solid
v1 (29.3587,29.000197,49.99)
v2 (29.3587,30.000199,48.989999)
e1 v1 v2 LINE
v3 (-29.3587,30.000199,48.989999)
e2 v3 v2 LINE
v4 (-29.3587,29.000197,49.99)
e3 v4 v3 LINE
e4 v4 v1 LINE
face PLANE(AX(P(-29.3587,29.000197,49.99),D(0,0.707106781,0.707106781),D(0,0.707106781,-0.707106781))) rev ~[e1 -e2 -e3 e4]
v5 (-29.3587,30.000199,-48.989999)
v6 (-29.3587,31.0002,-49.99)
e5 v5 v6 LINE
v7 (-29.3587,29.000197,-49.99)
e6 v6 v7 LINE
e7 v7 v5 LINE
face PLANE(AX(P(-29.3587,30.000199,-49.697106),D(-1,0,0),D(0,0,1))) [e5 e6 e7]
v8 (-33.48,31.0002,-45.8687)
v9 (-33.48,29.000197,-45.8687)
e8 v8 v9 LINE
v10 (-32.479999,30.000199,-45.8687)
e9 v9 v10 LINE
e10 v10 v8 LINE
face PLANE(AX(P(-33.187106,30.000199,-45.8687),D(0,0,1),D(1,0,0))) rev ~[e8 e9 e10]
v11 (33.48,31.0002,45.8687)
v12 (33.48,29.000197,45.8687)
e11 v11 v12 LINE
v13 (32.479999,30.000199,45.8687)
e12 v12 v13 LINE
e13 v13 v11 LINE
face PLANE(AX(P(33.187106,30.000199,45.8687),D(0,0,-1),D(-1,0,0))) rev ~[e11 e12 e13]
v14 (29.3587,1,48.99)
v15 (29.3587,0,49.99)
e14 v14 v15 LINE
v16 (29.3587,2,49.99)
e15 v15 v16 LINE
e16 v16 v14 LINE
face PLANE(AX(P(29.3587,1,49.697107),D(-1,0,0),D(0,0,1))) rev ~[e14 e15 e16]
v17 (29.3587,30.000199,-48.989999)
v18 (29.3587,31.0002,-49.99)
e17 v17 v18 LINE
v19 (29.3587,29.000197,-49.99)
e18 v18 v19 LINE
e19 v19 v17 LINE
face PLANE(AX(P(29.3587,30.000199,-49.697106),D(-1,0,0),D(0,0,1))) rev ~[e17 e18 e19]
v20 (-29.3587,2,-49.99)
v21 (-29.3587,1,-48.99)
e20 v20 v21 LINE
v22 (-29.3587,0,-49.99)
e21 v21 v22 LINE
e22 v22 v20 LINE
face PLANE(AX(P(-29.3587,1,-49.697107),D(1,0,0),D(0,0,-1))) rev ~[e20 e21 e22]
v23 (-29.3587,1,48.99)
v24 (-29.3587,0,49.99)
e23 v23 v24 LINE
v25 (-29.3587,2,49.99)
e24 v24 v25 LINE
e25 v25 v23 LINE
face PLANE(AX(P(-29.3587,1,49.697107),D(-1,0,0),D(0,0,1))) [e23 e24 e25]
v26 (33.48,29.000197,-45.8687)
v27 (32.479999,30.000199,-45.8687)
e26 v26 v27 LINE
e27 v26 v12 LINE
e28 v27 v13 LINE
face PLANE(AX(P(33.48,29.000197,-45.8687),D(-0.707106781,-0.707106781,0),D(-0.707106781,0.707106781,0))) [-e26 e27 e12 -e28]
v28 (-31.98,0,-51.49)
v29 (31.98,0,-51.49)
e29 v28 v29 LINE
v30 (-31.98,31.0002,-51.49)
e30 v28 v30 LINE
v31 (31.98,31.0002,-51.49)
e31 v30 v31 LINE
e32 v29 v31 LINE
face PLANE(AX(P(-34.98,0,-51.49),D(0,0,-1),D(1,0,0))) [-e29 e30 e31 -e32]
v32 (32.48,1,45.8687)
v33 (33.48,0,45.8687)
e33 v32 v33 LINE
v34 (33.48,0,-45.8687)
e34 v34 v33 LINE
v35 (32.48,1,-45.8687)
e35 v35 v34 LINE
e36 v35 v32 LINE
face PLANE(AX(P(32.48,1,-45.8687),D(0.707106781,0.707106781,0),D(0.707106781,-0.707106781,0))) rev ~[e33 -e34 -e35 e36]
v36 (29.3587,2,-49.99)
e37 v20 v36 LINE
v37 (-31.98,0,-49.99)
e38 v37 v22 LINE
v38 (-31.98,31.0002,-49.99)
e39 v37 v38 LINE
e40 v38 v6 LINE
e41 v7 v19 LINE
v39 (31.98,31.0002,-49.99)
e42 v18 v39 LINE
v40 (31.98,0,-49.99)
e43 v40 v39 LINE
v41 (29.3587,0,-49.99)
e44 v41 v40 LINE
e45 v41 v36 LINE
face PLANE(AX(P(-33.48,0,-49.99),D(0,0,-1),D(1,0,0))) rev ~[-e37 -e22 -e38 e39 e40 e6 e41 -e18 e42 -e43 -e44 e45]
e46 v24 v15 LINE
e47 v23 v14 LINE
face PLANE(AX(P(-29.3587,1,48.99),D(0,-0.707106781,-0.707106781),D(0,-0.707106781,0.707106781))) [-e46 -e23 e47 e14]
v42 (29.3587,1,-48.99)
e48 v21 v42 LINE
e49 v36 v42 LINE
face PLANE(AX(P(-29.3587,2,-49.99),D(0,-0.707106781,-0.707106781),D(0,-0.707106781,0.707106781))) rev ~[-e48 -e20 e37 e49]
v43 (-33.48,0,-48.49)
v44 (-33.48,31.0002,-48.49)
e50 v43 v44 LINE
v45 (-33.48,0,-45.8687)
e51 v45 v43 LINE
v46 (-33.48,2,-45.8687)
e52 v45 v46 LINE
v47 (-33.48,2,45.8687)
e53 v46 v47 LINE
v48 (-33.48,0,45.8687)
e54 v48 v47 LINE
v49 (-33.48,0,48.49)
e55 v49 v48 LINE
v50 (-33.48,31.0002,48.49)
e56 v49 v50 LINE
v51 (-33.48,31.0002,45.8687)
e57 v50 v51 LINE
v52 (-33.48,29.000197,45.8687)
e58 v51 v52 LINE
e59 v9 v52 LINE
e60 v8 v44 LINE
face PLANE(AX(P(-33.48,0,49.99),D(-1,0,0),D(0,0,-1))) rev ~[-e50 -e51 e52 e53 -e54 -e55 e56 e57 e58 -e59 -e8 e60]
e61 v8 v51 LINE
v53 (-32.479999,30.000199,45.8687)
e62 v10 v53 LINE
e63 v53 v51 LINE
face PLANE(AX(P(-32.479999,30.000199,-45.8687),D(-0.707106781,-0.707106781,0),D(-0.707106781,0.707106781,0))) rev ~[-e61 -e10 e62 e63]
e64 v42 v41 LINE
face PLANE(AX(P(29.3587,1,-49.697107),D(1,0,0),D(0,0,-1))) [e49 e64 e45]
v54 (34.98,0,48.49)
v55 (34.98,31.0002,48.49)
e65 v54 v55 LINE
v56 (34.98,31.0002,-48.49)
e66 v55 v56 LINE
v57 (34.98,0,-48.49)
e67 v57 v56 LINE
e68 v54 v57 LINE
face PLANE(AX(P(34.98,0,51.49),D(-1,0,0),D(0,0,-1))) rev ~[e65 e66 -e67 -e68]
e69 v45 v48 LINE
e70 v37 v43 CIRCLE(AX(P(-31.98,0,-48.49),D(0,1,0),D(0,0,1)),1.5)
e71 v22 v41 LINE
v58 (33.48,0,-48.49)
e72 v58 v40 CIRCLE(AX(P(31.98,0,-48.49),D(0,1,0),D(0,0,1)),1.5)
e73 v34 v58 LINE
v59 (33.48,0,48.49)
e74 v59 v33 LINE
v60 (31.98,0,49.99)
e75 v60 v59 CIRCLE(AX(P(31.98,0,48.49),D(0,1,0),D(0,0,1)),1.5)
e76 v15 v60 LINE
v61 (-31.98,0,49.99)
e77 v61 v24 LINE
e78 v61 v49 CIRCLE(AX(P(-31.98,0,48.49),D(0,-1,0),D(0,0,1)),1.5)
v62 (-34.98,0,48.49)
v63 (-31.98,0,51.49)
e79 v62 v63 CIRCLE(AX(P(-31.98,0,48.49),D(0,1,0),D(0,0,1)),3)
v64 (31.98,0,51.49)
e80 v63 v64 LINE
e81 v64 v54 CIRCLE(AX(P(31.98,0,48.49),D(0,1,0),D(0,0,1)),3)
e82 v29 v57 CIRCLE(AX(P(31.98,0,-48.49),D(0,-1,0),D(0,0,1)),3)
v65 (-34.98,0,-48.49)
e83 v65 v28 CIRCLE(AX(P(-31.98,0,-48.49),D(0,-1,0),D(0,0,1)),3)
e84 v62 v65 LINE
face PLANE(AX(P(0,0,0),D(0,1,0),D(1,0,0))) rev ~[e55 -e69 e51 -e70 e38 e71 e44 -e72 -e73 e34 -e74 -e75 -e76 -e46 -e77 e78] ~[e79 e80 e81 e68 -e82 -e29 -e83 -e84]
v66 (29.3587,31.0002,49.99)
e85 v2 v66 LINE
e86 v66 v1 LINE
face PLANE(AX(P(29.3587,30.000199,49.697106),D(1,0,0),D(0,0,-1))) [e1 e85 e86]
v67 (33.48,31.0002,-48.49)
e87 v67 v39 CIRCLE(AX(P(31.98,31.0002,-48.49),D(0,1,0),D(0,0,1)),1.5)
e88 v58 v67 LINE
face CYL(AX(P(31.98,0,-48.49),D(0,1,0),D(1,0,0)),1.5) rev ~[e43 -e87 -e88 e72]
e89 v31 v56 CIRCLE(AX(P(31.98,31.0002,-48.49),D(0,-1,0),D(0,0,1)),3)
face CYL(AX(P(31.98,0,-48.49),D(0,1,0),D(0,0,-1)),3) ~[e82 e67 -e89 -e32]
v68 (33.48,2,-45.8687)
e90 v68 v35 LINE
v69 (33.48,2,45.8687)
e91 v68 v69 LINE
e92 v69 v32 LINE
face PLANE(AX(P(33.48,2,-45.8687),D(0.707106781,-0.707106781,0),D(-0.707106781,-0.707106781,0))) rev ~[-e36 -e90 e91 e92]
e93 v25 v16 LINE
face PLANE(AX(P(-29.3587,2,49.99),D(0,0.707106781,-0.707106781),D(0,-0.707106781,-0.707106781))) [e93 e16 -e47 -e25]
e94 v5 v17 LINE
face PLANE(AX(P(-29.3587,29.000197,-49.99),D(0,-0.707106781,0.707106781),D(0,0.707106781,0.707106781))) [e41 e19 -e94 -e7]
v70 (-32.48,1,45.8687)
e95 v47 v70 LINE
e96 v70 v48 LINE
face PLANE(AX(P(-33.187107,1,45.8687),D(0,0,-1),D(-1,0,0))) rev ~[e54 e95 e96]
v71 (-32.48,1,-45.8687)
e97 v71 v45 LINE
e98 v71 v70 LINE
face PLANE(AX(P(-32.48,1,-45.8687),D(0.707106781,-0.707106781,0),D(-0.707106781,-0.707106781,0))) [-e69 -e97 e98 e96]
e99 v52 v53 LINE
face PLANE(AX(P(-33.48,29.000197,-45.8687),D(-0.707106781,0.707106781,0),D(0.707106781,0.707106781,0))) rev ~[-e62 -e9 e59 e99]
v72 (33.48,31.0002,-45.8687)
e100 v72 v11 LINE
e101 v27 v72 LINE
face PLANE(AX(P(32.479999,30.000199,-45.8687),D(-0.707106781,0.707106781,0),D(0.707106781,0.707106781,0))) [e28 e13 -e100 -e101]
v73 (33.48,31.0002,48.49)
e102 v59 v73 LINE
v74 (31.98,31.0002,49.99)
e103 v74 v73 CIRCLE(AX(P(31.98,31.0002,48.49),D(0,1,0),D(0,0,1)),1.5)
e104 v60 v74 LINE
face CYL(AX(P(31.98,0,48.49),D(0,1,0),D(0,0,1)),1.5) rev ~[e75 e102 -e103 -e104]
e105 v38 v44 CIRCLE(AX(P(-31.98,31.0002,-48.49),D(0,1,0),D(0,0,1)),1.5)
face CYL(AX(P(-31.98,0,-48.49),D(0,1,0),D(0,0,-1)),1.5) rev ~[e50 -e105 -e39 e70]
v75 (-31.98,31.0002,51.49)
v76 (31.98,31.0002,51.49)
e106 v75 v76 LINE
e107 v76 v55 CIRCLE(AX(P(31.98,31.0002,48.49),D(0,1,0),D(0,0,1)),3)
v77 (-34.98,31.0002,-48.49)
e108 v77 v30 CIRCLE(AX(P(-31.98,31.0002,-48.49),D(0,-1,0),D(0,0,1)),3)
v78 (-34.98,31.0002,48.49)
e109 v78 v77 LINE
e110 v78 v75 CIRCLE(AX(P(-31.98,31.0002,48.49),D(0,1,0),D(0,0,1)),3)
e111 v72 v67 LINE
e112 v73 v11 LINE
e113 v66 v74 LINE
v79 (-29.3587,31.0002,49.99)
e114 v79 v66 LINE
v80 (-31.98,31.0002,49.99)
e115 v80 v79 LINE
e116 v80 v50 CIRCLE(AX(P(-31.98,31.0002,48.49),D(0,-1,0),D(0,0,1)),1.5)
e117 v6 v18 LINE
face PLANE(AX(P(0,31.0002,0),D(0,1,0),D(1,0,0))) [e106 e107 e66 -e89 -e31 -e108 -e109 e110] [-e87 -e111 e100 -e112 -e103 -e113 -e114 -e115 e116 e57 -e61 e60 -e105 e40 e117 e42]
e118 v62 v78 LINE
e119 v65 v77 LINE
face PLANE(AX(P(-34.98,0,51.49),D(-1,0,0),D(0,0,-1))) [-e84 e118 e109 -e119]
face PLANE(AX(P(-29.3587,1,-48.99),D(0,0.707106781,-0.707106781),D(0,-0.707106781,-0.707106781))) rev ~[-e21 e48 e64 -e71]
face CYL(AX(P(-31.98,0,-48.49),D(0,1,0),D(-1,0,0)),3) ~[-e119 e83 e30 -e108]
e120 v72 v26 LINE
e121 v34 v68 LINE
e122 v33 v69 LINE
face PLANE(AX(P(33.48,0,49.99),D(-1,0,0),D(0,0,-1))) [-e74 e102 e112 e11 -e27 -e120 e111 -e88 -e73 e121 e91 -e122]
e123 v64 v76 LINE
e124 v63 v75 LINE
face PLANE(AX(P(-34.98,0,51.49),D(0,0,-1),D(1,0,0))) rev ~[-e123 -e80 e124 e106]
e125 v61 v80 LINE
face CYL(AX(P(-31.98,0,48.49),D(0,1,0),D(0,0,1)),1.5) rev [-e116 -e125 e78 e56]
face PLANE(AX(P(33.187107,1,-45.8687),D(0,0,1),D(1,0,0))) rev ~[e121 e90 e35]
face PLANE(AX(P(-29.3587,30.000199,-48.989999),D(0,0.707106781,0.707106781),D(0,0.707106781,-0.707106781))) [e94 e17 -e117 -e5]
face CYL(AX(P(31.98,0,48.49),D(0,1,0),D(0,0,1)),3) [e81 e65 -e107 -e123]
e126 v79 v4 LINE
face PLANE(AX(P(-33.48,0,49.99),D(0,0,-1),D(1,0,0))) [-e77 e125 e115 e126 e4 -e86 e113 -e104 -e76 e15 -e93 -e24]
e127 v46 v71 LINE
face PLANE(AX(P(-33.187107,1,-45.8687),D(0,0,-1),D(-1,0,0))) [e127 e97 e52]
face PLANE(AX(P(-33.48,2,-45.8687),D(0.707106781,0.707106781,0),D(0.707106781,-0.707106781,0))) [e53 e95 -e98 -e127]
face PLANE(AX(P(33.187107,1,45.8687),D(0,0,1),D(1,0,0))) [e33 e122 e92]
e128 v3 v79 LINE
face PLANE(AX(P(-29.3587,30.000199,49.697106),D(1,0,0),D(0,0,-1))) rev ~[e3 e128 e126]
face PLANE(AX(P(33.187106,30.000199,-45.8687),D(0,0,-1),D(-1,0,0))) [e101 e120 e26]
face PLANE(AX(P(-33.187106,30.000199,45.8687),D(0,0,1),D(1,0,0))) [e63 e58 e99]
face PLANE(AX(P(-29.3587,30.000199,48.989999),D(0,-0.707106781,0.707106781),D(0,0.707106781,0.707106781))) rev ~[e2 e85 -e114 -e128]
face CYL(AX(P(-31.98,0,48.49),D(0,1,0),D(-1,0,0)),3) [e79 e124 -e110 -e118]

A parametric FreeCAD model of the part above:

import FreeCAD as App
import Part
import Sketcher


def edges_at(feature, points):
    """Names of the edges that pass closest to the given points."""
    edges = feature.Shape.Edges
    near = lambda p: min(range(len(edges)), key=lambda i: edges[i].distToShape(Part.Vertex(*p))[0])
    return sorted({f"Edge{near(p) + 1}" for p in points})


def add_polygon(sketch, points):
    """Adds a closed chain of lines whose ends are joined by coincident constraints."""
    first, n = sketch.GeometryCount, len(points)
    for a, b in zip(points, points[1:] + points[:1]):
        sketch.addGeometry(Part.LineSegment(App.Vector(*a, 0), App.Vector(*b, 0)), False)
    for i in range(n):
        sketch.addConstraint(Sketcher.Constraint("Coincident", first + i, 2, first + (i + 1) % n, 1))

doc = App.newDocument("Part")
body = doc.addObject("PartDesign::Body", "Body")

sketch1 = body.newObject("Sketcher::SketchObject", "Sketch")
sketch1.AttachmentSupport = (doc.getObject("XZ_Plane"), [""])
sketch1.MapMode = "FlatFace"
add_polygon(sketch1, [(-35, -51), (-35, 51), (35, 51), (35, -51)])
add_polygon(sketch1, [(33, 50), (-33, 50), (-33, -50), (33, -50)])
sketch1.addConstraint(Sketcher.Constraint("Vertical", 0))
sketch1.addConstraint(Sketcher.Constraint("Horizontal", 1))
sketch1.addConstraint(Sketcher.Constraint("Vertical", 2))
sketch1.addConstraint(Sketcher.Constraint("Horizontal", 3))
sketch1.addConstraint(Sketcher.Constraint("Horizontal", 4))
sketch1.addConstraint(Sketcher.Constraint("Vertical", 5))
sketch1.addConstraint(Sketcher.Constraint("Horizontal", 6))
sketch1.addConstraint(Sketcher.Constraint("Vertical", 7))
sketch1.addConstraint(Sketcher.Constraint("Symmetric", 0, 2, 2, 2, -1, 1))
sketch1.addConstraint(Sketcher.Constraint("Symmetric", 4, 2, 6, 2, -1, 1))
sketch1.addConstraint(Sketcher.Constraint("DistanceX", 1, 1, 1, 2, 69.96))
sketch1.addConstraint(Sketcher.Constraint("DistanceX", 4, 2, 4, 1, 66.96))
sketch1.addConstraint(Sketcher.Constraint("DistanceY", 0, 1, 0, 2, 102.98))
sketch1.addConstraint(Sketcher.Constraint("DistanceY", 5, 2, 5, 1, 99.98))
pad1 = body.newObject("PartDesign::Pad", "Pad")
pad1.Profile = sketch1
pad1.Length = 31.0002
pad1.Reversed = True
doc.recompute()

fillet = body.newObject("PartDesign::Fillet", "Fillet")
fillet.Base = (pad1, edges_at(pad1, [
    (34.98, 15.5, 51.49),
    (-34.98, 15.5, 51.49),
    (-34.98, 15.5, -51.49),
    (34.98, 15.5, -51.49),
]))
fillet.Radius = 3
doc.recompute()

fillet2 = body.newObject("PartDesign::Fillet", "Fillet001")
fillet2.Base = (fillet, edges_at(fillet, [
    (-33.48, 15.5, -49.99),
    (-33.48, 15.5, 49.99),
    (33.48, 15.5, 49.99),
    (33.48, 15.5, -49.99),
]))
fillet2.Radius = 1.5

sketch2 = body.newObject("Sketcher::SketchObject", "Sketch001")
sketch2.AttachmentSupport = (doc.getObject("YZ_Plane"), [""])
sketch2.MapMode = "FlatFace"
sketch2.AttachmentOffset = App.Placement(App.Vector(0, 0, -29.3587), App.Rotation())
add_polygon(sketch2, [(31, 50), (29, 50), (30, 49)])
add_polygon(sketch2, [(29, -50), (31, -50), (30, -49)])
add_polygon(sketch2, [(2, 50), (0, 50), (1, 49)])
add_polygon(sketch2, [(0, -50), (2, -50), (1, -49)])
sketch2.addConstraint(Sketcher.Constraint("Horizontal", 0))
sketch2.addConstraint(Sketcher.Constraint("Horizontal", 3))
sketch2.addConstraint(Sketcher.Constraint("Horizontal", 6))
sketch2.addConstraint(Sketcher.Constraint("Horizontal", 9))
sketch2.addConstraint(Sketcher.Constraint("Symmetric", 6, 2, 11, 2, -1, 1))
sketch2.addConstraint(Sketcher.Constraint("Symmetric", 2, 2, 3, 2, -1))
sketch2.addConstraint(Sketcher.Constraint("Symmetric", 1, 2, 4, 2, -1))
sketch2.addConstraint(Sketcher.Constraint("Symmetric", 7, 2, 10, 2, -1))
sketch2.addConstraint(Sketcher.Constraint("PointOnObject", 6, 2, -2))
sketch2.addConstraint(Sketcher.Constraint("Perpendicular", 1, 2))
sketch2.addConstraint(Sketcher.Constraint("Perpendicular", 2, 4))
sketch2.addConstraint(Sketcher.Constraint("Perpendicular", 4, 5))
sketch2.addConstraint(Sketcher.Constraint("Perpendicular", 5, 7))
sketch2.addConstraint(Sketcher.Constraint("Perpendicular", 7, 8))
sketch2.addConstraint(Sketcher.Constraint("Perpendicular", 8, 10))
sketch2.addConstraint(Sketcher.Constraint("Horizontal", 2, 2, 6, 2))
sketch2.addConstraint(Sketcher.Constraint("Horizontal", 1, 2, 7, 2))
sketch2.addConstraint(Sketcher.Constraint("DistanceX", 6, 2, 6, 1, 2.0))
sketch2.addConstraint(Sketcher.Constraint("DistanceY", -1, 1, 0, 2, 49.99))
sketch2.addConstraint(Sketcher.Constraint("DistanceX", -1, 1, 1, 2, 30.000199))
pad2 = body.newObject("PartDesign::Pad", "Pad001")
pad2.Profile = sketch2
pad2.Length = 58.7174

sketch3 = body.newObject("Sketcher::SketchObject", "Sketch002")
sketch3.AttachmentSupport = (doc.getObject("XY_Plane"), [""])
sketch3.MapMode = "FlatFace"
sketch3.AttachmentOffset = App.Placement(App.Vector(0, 0, -45.8687), App.Rotation())
add_polygon(sketch3, [(-33.5, 31), (-33.5, 29), (-32.5, 30)])
add_polygon(sketch3, [(-33.5, 2), (-33.5, 0), (-32.5, 1)])
add_polygon(sketch3, [(33.5, 29), (33.5, 31), (32.5, 30)])
add_polygon(sketch3, [(33.5, 0), (33.5, 2), (32.5, 1)])
sketch3.addConstraint(Sketcher.Constraint("Vertical", 0))
sketch3.addConstraint(Sketcher.Constraint("Vertical", 3))
sketch3.addConstraint(Sketcher.Constraint("Vertical", 6))
sketch3.addConstraint(Sketcher.Constraint("Vertical", 9))
sketch3.addConstraint(Sketcher.Constraint("Symmetric", 3, 2, 11, 2, -1, 1))
sketch3.addConstraint(Sketcher.Constraint("Symmetric", 2, 2, 6, 2, -2))
sketch3.addConstraint(Sketcher.Constraint("Symmetric", 1, 2, 7, 2, -2))
sketch3.addConstraint(Sketcher.Constraint("Symmetric", 4, 2, 10, 2, -2))
sketch3.addConstraint(Sketcher.Constraint("PointOnObject", 3, 2, -1))
sketch3.addConstraint(Sketcher.Constraint("Perpendicular", 1, 2))
sketch3.addConstraint(Sketcher.Constraint("Perpendicular", 2, 4))
sketch3.addConstraint(Sketcher.Constraint("Perpendicular", 4, 5))
sketch3.addConstraint(Sketcher.Constraint("Perpendicular", 5, 7))
sketch3.addConstraint(Sketcher.Constraint("Perpendicular", 7, 8))
sketch3.addConstraint(Sketcher.Constraint("Perpendicular", 8, 10))
sketch3.addConstraint(Sketcher.Constraint("Vertical", 2, 2, 3, 2))
sketch3.addConstraint(Sketcher.Constraint("Vertical", 1, 2, 4, 2))
sketch3.addConstraint(Sketcher.Constraint("DistanceY", 3, 2, 3, 1, 2.0))
sketch3.addConstraint(Sketcher.Constraint("DistanceX", 0, 2, -1, 1, 33.48))
sketch3.addConstraint(Sketcher.Constraint("DistanceY", -1, 1, 1, 2, 30.000199))
pad3 = body.newObject("PartDesign::Pad", "Pad002")
pad3.Profile = sketch3
pad3.Length = 91.7374

doc.recompute()
